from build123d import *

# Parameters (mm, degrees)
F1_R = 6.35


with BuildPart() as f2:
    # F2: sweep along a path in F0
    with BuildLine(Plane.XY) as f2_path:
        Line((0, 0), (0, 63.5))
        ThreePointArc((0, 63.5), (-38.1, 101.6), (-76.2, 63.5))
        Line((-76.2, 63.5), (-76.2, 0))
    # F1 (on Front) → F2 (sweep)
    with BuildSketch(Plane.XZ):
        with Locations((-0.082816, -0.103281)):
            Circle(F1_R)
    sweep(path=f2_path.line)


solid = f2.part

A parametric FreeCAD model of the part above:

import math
import FreeCAD as App
import Part
import Sketcher

V = App.Vector
Q = App.Units.Quantity

doc = App.newDocument("Part")
body = doc.addObject("PartDesign::Body", "Body")

# Sketch on XZ plane
sketch1 = doc.addObject("Sketcher::SketchObject", "Sketch")
body.addObject(sketch1)
sketch1.AttachmentSupport = (doc.XZ_Plane, [""])
sketch1.MapMode = "FlatFace"
sketch1.addGeometry(Part.Circle(V(0, 0, 0), V(0, 0, 1), 6), False)
sketch1.addConstraint([
    Sketcher.Constraint("Diameter", 0, Q("0.5 in")),
    Sketcher.Constraint("DistanceY", 0, 3, -1, 1, Q("0.103281 mm")),
    Sketcher.Constraint("DistanceX", 0, 3, -1, 1, Q("0.082816 mm")),
])

# Sketch on XY plane
sketch2 = doc.addObject("Sketcher::SketchObject", "Sketch001")
body.addObject(sketch2)
sketch2.AttachmentSupport = (doc.XY_Plane, [""])
sketch2.MapMode = "FlatFace"
sketch2.addGeometry([
    Part.LineSegment(V(0, 0, 0), V(0, 64, 0)),
    Part.ArcOfCircle(Part.Circle(V(-38, 64, 0), V(0, 0, 1), 38), math.radians(0), math.radians(180)),
    Part.LineSegment(V(-76, 64, 0), V(-76, 0, 0)),
], False)
sketch2.addConstraint([
    Sketcher.Constraint("Tangent", 0, 2, 1, 1),
    Sketcher.Constraint("Tangent", 1, 2, 2, 1),
    Sketcher.Constraint("Vertical", 0),
    Sketcher.Constraint("Vertical", 2),
    Sketcher.Constraint("Coincident", 0, 1, -1, 1),
    Sketcher.Constraint("PointOnObject", 2, 2, -1),
    Sketcher.Constraint("Radius", 1, Q("1.5 in")),
    Sketcher.Constraint("DistanceY", 0, 1, 0, 2, Q("2.5 in")),
])
doc.recompute()

additivepipe = doc.addObject("PartDesign::AdditivePipe", "AdditivePipe")
body.addObject(additivepipe)
additivepipe.Profile = sketch1
additivepipe.Spine = (sketch2, ["Edge1", "Edge2", "Edge3"])

doc.recompute()
